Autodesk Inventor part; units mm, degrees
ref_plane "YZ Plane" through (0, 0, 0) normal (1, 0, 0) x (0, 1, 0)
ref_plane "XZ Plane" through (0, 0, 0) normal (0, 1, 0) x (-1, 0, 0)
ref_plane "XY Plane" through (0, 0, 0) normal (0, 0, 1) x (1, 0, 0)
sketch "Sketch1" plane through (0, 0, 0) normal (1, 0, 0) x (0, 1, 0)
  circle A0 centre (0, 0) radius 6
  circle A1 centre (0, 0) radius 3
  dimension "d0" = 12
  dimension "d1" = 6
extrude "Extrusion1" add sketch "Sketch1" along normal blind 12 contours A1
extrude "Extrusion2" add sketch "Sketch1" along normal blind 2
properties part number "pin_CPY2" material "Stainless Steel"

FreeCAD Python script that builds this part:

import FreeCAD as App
import Part
import Sketcher
from FreeCAD import Vector
Q = App.Units.Quantity

doc = App.newDocument("Part")
body = doc.addObject("PartDesign::Body", "Body")

# Sketch on YZ plane
sketch1 = body.newObject("Sketcher::SketchObject", "Sketch")
sketch1.AttachmentSupport = (doc.getObject("YZ_Plane"), [""])
sketch1.MapMode = "FlatFace"
sketch1.addGeometry(Part.Circle(Vector(0, 0, 0), Vector(0, 0, 1), 3), False)
sketch1.addConstraint([
    Sketcher.Constraint("Coincident", 0, 3, -1, 1),
    Sketcher.Constraint("Diameter", 0, Q("6 mm")),
])
pad1 = body.newObject("PartDesign::Pad", "Pad")
pad1.Profile = sketch1
pad1.Length = 12

# Sketch on YZ plane
sketch2 = body.newObject("Sketcher::SketchObject", "Sketch001")
sketch2.AttachmentSupport = (doc.getObject("YZ_Plane"), [""])
sketch2.MapMode = "FlatFace"
sketch2.addGeometry([
    Part.Circle(Vector(0, 0, 0), Vector(0, 0, 1), 6),
    Part.Circle(Vector(0, 0, 0), Vector(0, 0, 1), 3),
], False)
sketch2.addConstraint([
    Sketcher.Constraint("Coincident", 0, 3, -1, 1),
    Sketcher.Constraint("Coincident", 1, 3, -1, 1),
    Sketcher.Constraint("Diameter", 0, Q("12 mm")),
    Sketcher.Constraint("Diameter", 1, Q("6 mm")),
])
pad2 = body.newObject("PartDesign::Pad", "Pad001")
pad2.Profile = sketch2
pad2.Length = 2

doc.recompute()
